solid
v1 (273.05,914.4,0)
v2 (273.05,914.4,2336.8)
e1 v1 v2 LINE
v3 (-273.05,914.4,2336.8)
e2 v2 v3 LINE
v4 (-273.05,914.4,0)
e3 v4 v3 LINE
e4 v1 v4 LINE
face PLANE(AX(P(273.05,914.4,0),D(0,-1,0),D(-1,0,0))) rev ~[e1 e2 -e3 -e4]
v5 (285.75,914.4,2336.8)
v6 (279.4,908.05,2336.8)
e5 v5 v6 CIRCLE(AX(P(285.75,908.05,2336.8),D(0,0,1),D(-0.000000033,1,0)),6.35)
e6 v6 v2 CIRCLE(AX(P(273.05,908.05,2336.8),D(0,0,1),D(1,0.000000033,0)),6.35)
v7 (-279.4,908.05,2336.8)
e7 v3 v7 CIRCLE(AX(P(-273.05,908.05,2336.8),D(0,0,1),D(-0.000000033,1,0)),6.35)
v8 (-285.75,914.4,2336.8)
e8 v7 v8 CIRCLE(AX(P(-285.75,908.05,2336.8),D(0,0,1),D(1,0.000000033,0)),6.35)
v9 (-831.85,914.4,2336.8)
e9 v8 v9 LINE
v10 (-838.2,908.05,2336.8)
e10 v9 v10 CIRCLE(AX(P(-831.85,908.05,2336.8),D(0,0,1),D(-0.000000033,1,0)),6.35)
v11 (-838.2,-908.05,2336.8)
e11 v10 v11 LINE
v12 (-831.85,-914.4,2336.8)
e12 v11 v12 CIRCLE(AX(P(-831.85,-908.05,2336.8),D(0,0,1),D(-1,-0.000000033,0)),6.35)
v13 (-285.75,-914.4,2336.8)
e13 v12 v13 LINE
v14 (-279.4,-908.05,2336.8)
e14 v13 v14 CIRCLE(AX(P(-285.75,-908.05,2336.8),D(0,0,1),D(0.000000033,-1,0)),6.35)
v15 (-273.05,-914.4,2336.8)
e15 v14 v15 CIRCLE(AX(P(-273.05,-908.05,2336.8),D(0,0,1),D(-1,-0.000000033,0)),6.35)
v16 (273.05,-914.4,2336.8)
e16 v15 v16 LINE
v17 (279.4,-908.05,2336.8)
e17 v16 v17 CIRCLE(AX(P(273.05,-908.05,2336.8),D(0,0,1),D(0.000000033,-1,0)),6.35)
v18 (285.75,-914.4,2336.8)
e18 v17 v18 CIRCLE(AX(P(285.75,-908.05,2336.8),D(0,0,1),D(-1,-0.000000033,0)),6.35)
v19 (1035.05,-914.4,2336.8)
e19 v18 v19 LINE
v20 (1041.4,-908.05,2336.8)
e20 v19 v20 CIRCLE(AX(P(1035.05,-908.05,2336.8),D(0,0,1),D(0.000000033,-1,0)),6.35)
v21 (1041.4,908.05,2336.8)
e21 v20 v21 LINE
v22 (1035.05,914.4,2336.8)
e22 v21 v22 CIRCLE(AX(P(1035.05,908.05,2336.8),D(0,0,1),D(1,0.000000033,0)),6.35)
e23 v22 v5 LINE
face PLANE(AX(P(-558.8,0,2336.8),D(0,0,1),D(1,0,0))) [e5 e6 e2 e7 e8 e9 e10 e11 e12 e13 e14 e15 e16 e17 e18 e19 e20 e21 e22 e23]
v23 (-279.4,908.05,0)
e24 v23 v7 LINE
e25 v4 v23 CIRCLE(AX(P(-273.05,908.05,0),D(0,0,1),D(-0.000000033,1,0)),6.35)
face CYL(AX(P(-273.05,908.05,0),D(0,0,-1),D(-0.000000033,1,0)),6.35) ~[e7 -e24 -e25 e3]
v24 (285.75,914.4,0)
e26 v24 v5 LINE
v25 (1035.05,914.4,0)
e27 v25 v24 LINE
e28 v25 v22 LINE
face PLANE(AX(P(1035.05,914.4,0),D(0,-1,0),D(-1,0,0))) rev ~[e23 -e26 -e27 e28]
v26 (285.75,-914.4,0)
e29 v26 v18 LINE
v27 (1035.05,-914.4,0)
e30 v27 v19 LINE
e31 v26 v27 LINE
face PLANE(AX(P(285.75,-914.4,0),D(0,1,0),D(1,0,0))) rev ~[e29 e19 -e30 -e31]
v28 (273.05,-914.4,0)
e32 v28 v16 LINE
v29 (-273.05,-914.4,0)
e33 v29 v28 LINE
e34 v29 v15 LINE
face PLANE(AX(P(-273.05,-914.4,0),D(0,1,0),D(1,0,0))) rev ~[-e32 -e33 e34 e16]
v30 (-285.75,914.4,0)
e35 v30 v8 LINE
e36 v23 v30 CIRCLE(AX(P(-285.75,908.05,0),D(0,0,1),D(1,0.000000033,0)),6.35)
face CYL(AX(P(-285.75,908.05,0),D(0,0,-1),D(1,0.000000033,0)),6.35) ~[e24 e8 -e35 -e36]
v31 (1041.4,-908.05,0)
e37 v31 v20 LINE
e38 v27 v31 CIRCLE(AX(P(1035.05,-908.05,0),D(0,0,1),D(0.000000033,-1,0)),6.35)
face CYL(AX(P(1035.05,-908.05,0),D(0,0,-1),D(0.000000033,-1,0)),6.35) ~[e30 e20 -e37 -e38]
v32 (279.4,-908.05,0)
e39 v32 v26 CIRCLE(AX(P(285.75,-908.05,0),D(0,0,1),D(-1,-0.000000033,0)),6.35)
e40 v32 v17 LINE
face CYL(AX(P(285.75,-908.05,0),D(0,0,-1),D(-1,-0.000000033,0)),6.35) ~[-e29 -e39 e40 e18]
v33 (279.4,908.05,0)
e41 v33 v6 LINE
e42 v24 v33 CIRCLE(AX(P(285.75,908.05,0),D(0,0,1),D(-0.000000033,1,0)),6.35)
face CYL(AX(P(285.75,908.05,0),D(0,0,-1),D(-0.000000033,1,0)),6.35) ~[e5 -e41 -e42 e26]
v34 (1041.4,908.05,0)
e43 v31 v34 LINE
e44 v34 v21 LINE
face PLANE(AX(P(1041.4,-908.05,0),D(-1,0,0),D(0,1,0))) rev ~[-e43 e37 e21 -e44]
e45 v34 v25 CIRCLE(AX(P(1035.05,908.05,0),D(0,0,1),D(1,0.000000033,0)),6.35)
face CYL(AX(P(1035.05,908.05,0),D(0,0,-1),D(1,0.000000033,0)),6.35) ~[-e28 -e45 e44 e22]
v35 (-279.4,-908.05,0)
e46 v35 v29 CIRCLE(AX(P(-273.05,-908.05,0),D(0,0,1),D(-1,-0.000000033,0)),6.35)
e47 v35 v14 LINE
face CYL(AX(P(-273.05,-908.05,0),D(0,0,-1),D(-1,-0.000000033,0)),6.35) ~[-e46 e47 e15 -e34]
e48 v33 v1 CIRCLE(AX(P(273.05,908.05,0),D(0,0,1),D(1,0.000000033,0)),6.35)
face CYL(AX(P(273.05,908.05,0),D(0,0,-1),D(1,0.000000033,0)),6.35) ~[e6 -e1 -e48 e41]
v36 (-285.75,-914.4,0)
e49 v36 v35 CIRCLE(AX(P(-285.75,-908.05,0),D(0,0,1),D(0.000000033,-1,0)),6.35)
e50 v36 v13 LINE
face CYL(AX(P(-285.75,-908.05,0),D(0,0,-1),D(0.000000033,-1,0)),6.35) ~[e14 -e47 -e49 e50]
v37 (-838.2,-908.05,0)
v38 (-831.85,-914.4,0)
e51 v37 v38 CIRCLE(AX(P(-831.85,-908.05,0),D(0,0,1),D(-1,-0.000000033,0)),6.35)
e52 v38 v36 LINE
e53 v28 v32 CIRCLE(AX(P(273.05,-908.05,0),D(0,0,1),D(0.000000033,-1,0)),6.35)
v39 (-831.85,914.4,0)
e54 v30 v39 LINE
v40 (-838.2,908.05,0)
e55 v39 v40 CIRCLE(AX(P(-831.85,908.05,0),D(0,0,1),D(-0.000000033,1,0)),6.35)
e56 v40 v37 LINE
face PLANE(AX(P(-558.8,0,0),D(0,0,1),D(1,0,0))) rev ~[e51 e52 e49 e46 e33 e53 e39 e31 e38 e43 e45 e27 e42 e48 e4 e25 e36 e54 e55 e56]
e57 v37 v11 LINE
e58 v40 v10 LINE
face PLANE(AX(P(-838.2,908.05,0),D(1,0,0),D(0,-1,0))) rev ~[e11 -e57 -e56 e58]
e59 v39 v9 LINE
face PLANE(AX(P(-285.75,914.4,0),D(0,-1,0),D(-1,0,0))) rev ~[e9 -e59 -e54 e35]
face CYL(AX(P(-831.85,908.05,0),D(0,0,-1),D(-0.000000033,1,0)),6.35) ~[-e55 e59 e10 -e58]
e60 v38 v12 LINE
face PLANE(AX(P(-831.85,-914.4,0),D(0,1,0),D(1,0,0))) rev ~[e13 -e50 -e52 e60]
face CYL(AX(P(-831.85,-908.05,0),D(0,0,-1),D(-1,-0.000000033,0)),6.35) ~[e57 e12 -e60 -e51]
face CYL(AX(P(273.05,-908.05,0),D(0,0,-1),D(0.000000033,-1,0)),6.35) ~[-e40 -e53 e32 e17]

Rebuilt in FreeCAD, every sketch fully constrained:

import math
import FreeCAD as App
import Part
import Sketcher
from FreeCAD import Vector
Q = App.Units.Quantity

doc = App.newDocument("Part")
body = doc.addObject("PartDesign::Body", "Body")

sketch1 = body.newObject("Sketcher::SketchObject", "Sketch")
sketch1.AttachmentSupport = (doc.getObject("XY_Plane"), [""])
sketch1.MapMode = "FlatFace"
sketch1.addGeometry([
    Part.ArcOfCircle(Part.Circle(Vector(-286, 908, 0), Vector(0, 0, 1), 6), math.radians(0), math.radians(90)),
    Part.LineSegment(Vector(-286, 914, 0), Vector(-832, 914, 0)),
    Part.ArcOfCircle(Part.Circle(Vector(-832, 908, 0), Vector(0, 0, 1), 6), math.radians(90), math.radians(180)),
    Part.LineSegment(Vector(-838, 908, 0), Vector(-838, -908, 0)),
    Part.ArcOfCircle(Part.Circle(Vector(-832, -908, 0), Vector(0, 0, 1), 6), math.radians(-180), math.radians(-90)),
    Part.LineSegment(Vector(-832, -914, 0), Vector(-286, -914, 0)),
    Part.ArcOfCircle(Part.Circle(Vector(-286, -908, 0), Vector(0, 0, 1), 6), math.radians(-90), math.radians(0)),
    Part.ArcOfCircle(Part.Circle(Vector(-273, -908, 0), Vector(0, 0, 1), 6), math.radians(-180), math.radians(-90)),
    Part.LineSegment(Vector(-273, -914, 0), Vector(273, -914, 0)),
    Part.ArcOfCircle(Part.Circle(Vector(273, -908, 0), Vector(0, 0, 1), 6), math.radians(-90), math.radians(0)),
    Part.ArcOfCircle(Part.Circle(Vector(286, -908, 0), Vector(0, 0, 1), 6), math.radians(-180), math.radians(-90)),
    Part.LineSegment(Vector(286, -914, 0), Vector(1035, -914, 0)),
    Part.ArcOfCircle(Part.Circle(Vector(1035, -908, 0), Vector(0, 0, 1), 6), math.radians(-90), math.radians(0)),
    Part.LineSegment(Vector(1041, -908, 0), Vector(1041, 908, 0)),
    Part.ArcOfCircle(Part.Circle(Vector(1035, 908, 0), Vector(0, 0, 1), 6), math.radians(0), math.radians(90)),
    Part.LineSegment(Vector(1035, 914, 0), Vector(286, 914, 0)),
    Part.ArcOfCircle(Part.Circle(Vector(286, 908, 0), Vector(0, 0, 1), 6), math.radians(90), math.radians(180)),
    Part.ArcOfCircle(Part.Circle(Vector(273, 908, 0), Vector(0, 0, 1), 6), math.radians(0), math.radians(90)),
    Part.LineSegment(Vector(273, 914, 0), Vector(-273, 914, 0)),
    Part.ArcOfCircle(Part.Circle(Vector(-273, 908, 0), Vector(0, 0, 1), 6), math.radians(90), math.radians(180)),
], False)
sketch1.addConstraint([
    Sketcher.Constraint("Tangent", 0, 2, 1, 1),
    Sketcher.Constraint("Tangent", 1, 2, 2, 1),
    Sketcher.Constraint("Tangent", 2, 2, 3, 1),
    Sketcher.Constraint("Tangent", 3, 2, 4, 1),
    Sketcher.Constraint("Tangent", 4, 2, 5, 1),
    Sketcher.Constraint("Tangent", 5, 2, 6, 1),
    Sketcher.Constraint("Tangent", 6, 2, 7, 1),
    Sketcher.Constraint("Tangent", 7, 2, 8, 1),
    Sketcher.Constraint("Tangent", 8, 2, 9, 1),
    Sketcher.Constraint("Tangent", 9, 2, 10, 1),
    Sketcher.Constraint("Tangent", 10, 2, 11, 1),
    Sketcher.Constraint("Tangent", 11, 2, 12, 1),
    Sketcher.Constraint("Tangent", 12, 2, 13, 1),
    Sketcher.Constraint("Tangent", 13, 2, 14, 1),
    Sketcher.Constraint("Tangent", 14, 2, 15, 1),
    Sketcher.Constraint("Tangent", 15, 2, 16, 1),
    Sketcher.Constraint("Tangent", 16, 2, 17, 1),
    Sketcher.Constraint("Tangent", 17, 2, 18, 1),
    Sketcher.Constraint("Tangent", 18, 2, 19, 1),
    Sketcher.Constraint("Tangent", 19, 2, 0, 1),
    Sketcher.Constraint("Horizontal", 1),
    Sketcher.Constraint("Vertical", 3),
    Sketcher.Constraint("Horizontal", 5),
    Sketcher.Constraint("Horizontal", 8),
    Sketcher.Constraint("Horizontal", 11),
    Sketcher.Constraint("Vertical", 13),
    Sketcher.Constraint("Horizontal", 15),
    Sketcher.Constraint("Horizontal", 18),
    Sketcher.Constraint("Equal", 0, 2),
    Sketcher.Constraint("Equal", 2, 4),
    Sketcher.Constraint("Equal", 4, 6),
    Sketcher.Constraint("Equal", 6, 7),
    Sketcher.Constraint("Equal", 7, 9),
    Sketcher.Constraint("Equal", 9, 10),
    Sketcher.Constraint("Equal", 10, 12),
    Sketcher.Constraint("Equal", 12, 14),
    Sketcher.Constraint("Equal", 14, 16),
    Sketcher.Constraint("Equal", 16, 17),
    Sketcher.Constraint("Equal", 17, 19),
    Sketcher.Constraint("Symmetric", 0, 3, 10, 3, -1, 1),
    Sketcher.Constraint("Symmetric", 6, 3, 16, 3, -1, 1),
    Sketcher.Constraint("Symmetric", 6, 3, 10, 3, -2),
    Sketcher.Constraint("Horizontal", 6, 3, 7, 3),
    Sketcher.Constraint("Horizontal", 16, 3, 17, 3),
    Sketcher.Constraint("Equal", 5, 8),
    Sketcher.Constraint("Radius", 0, Q("0.25 in")),
    Sketcher.Constraint("DistanceX", 1, 2, 1, 1, Q("21.5 in")),
    Sketcher.Constraint("DistanceX", 11, 1, 11, 2, Q("29.5 in")),
    Sketcher.Constraint("DistanceY", 3, 2, 3, 1, Q("71.5 in")),
])
pad1 = body.newObject("PartDesign::Pad", "Pad")
pad1.Profile = sketch1
pad1.Length = Q("92 in")

doc.recompute()
